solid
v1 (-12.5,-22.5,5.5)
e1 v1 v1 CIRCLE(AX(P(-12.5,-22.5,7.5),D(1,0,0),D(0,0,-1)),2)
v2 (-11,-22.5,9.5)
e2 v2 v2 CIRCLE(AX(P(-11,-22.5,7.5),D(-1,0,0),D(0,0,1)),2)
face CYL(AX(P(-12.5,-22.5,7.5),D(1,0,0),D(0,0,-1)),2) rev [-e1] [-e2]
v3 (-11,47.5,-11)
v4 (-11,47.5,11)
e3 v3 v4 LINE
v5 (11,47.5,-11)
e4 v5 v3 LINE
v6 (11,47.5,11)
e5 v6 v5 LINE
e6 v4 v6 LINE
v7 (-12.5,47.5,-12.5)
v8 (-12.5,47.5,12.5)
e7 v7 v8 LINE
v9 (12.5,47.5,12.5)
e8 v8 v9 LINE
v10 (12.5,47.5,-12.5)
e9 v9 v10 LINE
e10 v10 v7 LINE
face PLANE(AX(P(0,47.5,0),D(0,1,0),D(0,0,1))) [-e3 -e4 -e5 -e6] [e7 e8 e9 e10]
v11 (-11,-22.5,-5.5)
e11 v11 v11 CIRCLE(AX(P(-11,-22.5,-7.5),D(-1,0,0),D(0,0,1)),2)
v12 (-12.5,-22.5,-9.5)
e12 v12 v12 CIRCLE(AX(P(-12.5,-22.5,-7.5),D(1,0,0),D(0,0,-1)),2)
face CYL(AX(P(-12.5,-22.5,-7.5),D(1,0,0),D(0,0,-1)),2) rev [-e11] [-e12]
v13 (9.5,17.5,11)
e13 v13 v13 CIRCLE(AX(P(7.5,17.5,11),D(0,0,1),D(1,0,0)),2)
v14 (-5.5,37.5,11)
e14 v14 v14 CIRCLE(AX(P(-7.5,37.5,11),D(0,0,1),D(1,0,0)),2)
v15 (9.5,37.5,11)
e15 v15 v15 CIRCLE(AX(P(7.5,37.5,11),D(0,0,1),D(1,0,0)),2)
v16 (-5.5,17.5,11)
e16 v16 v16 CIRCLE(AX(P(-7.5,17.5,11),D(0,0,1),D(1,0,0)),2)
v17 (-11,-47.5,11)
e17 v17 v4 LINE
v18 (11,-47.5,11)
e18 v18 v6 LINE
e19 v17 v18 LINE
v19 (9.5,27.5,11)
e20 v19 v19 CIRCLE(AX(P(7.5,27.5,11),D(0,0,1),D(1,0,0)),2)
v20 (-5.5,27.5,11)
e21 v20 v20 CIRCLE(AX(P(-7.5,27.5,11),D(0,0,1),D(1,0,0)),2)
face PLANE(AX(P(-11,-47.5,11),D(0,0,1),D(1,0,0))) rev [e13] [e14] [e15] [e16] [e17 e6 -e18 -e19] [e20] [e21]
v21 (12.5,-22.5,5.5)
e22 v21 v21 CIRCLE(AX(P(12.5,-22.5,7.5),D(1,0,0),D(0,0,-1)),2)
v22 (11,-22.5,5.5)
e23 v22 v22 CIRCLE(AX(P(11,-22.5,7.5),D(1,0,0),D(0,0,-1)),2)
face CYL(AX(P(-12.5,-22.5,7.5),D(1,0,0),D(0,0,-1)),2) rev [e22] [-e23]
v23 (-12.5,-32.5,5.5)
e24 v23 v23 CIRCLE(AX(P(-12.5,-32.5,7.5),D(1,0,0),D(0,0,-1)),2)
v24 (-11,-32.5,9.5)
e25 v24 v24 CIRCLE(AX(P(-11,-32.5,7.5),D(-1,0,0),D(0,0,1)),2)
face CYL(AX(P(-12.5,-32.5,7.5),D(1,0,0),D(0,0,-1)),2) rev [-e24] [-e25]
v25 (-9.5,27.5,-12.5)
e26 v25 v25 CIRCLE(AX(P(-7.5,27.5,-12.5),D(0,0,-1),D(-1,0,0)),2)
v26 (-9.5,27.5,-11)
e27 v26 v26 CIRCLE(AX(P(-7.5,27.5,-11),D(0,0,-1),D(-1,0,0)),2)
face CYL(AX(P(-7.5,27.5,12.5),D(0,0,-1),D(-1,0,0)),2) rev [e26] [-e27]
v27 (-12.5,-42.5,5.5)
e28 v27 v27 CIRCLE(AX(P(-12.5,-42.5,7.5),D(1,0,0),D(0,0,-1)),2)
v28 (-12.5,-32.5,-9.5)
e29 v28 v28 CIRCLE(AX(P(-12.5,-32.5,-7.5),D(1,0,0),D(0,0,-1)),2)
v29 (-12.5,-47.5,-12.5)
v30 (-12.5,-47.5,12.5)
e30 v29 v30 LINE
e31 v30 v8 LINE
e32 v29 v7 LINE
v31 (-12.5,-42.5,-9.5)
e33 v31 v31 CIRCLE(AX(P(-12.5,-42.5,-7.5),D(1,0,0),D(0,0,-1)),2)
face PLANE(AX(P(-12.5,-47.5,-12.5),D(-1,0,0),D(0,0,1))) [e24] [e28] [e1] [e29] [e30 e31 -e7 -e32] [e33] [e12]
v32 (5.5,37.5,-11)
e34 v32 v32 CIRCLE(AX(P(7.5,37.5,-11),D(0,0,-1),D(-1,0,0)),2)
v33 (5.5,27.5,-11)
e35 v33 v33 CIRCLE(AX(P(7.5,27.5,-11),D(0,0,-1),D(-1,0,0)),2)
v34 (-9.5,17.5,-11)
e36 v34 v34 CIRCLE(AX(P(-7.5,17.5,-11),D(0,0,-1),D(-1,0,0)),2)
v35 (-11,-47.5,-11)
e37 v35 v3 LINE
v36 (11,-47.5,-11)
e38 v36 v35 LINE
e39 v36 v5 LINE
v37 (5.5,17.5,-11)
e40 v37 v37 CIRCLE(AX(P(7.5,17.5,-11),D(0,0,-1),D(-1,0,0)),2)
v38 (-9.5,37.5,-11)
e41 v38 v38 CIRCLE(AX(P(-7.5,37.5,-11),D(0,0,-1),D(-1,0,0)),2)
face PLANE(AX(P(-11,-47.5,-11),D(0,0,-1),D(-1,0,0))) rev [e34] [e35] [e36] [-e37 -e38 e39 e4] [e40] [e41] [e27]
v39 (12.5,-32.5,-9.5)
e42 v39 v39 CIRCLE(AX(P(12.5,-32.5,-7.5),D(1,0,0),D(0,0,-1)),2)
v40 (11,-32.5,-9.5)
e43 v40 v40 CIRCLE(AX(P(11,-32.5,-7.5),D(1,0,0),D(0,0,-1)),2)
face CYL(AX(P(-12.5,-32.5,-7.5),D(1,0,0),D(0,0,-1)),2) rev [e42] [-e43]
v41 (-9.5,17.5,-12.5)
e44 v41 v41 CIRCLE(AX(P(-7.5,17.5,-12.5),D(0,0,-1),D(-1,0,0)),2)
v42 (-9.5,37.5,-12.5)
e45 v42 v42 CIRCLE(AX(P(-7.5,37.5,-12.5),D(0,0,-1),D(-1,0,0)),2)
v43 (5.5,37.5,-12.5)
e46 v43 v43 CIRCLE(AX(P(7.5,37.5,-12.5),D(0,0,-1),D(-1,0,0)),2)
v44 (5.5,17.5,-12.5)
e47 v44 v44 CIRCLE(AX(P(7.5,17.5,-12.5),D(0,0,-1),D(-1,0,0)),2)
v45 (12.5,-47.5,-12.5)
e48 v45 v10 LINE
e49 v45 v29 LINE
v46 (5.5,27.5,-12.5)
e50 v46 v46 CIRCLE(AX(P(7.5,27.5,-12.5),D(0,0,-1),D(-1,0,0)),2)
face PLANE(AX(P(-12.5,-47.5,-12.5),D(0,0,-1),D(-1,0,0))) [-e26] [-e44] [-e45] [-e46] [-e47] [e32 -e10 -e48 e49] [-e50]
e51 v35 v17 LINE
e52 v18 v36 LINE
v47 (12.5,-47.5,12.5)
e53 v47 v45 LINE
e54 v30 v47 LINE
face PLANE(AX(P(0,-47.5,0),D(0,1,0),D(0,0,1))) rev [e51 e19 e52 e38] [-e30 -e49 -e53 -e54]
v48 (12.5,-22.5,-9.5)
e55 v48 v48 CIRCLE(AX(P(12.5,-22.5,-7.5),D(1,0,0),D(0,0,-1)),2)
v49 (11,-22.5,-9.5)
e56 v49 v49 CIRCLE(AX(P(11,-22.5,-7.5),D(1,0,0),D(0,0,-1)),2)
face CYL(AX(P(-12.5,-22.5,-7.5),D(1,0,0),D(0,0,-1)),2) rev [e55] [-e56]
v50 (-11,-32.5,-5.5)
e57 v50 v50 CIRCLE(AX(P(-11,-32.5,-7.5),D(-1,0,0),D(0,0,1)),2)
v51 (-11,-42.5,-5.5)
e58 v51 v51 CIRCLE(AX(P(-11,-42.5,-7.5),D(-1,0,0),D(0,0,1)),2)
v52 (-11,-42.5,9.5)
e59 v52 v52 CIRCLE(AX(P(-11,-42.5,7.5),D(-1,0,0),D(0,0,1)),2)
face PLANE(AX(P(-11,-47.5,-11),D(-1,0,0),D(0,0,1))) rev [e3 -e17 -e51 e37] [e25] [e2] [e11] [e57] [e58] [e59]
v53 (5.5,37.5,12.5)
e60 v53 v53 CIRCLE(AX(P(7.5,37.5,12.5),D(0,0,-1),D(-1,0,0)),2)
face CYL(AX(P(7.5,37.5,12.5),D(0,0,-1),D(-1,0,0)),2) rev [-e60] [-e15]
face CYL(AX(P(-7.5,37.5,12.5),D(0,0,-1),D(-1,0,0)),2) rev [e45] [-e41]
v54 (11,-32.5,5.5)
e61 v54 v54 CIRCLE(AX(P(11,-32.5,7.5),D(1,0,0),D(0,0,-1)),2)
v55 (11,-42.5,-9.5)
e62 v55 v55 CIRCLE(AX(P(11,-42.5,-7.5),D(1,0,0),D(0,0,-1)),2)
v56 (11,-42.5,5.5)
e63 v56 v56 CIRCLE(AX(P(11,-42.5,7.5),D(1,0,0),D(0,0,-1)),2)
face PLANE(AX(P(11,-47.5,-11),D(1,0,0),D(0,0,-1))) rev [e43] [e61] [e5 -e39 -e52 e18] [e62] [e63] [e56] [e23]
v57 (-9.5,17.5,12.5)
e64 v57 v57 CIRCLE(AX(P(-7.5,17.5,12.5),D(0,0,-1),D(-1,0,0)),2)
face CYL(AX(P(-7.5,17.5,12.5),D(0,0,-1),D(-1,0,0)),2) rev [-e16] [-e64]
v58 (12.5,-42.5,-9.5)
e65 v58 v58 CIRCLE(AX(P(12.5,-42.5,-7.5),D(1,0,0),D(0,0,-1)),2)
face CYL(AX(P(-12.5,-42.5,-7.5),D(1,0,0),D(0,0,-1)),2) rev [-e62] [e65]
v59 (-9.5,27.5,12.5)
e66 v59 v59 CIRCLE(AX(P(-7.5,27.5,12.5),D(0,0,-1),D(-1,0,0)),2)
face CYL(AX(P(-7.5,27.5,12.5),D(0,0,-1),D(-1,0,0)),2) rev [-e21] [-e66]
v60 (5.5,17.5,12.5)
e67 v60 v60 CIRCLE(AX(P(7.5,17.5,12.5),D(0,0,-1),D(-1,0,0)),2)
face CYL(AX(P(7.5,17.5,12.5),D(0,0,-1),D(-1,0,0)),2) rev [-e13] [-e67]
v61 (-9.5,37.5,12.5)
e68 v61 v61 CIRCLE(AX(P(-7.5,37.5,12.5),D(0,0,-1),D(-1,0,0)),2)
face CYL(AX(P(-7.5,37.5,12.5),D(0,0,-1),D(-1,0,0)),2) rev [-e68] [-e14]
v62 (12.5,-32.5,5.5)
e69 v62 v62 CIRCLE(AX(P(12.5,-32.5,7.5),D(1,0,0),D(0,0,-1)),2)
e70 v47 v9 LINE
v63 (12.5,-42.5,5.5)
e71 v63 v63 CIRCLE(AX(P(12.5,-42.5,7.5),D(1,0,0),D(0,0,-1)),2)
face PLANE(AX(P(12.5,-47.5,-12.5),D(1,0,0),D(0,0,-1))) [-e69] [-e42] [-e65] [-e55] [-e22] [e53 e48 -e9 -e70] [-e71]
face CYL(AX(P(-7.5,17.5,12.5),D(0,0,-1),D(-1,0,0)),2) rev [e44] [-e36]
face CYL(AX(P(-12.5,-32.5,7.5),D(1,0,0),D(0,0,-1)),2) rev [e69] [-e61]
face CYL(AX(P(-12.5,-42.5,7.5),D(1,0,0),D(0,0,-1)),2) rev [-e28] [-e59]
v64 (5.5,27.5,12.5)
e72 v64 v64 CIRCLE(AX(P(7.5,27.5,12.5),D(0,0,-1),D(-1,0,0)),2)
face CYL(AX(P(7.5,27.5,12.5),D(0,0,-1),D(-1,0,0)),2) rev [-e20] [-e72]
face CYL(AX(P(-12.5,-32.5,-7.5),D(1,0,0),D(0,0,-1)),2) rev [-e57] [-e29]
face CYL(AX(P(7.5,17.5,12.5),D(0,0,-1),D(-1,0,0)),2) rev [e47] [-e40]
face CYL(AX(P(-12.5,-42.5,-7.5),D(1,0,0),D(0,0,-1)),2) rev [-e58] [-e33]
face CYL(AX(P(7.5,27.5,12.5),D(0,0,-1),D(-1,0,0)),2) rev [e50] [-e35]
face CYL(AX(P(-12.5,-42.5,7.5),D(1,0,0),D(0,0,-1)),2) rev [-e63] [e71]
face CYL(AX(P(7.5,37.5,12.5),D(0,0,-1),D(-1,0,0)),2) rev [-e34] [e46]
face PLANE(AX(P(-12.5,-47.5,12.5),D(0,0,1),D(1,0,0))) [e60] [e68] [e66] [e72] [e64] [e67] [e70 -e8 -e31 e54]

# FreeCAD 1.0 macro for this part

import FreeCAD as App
import Part
import Sketcher

V = App.Vector
Q = App.Units.Quantity

doc = App.newDocument("Part")
body = doc.addObject("PartDesign::Body", "Body")

# Sketch on XZ plane
sketch1 = body.newObject("Sketcher::SketchObject", "Sketch")
sketch1.AttachmentSupport = (doc.getObject("XZ_Plane"), [""])
sketch1.MapMode = "FlatFace"
sketch1.addGeometry([
    Part.LineSegment(V(-12, -12, 0), V(-12, 12, 0)),  # 0
    Part.LineSegment(V(-12, 12, 0), V(12, 12, 0)),  # 1
    Part.LineSegment(V(12, 12, 0), V(12, -12, 0)),  # 2
    Part.LineSegment(V(12, -12, 0), V(-12, -12, 0)),  # 3
    Part.LineSegment(V(11, 11, 0), V(-11, 11, 0)),  # 4
    Part.LineSegment(V(-11, 11, 0), V(-11, -11, 0)),  # 5
    Part.LineSegment(V(-11, -11, 0), V(11, -11, 0)),  # 6
    Part.LineSegment(V(11, -11, 0), V(11, 11, 0)),  # 7
], False)
sketch1.addConstraint([
    Sketcher.Constraint("Coincident", 0, 2, 1, 1),
    Sketcher.Constraint("Coincident", 1, 2, 2, 1),
    Sketcher.Constraint("Coincident", 2, 2, 3, 1),
    Sketcher.Constraint("Coincident", 3, 2, 0, 1),
    Sketcher.Constraint("Coincident", 4, 2, 5, 1),
    Sketcher.Constraint("Coincident", 5, 2, 6, 1),
    Sketcher.Constraint("Coincident", 6, 2, 7, 1),
    Sketcher.Constraint("Coincident", 7, 2, 4, 1),
    Sketcher.Constraint("Vertical", 0),
    Sketcher.Constraint("Horizontal", 1),
    Sketcher.Constraint("Vertical", 2),
    Sketcher.Constraint("Horizontal", 3),
    Sketcher.Constraint("Horizontal", 4),
    Sketcher.Constraint("Vertical", 5),
    Sketcher.Constraint("Horizontal", 6),
    Sketcher.Constraint("Vertical", 7),
    Sketcher.Constraint("Symmetric", 0, 2, 2, 2, -1, 1),
    Sketcher.Constraint("Symmetric", 4, 2, 6, 2, -1, 1),
    Sketcher.Constraint("Equal", 3, 0),
    Sketcher.Constraint("Equal", 6, 5),
    Sketcher.Constraint("DistanceX", 1, 1, 1, 2, Q("25 mm")),
    Sketcher.Constraint("DistanceX", 4, 2, 4, 1, Q("22 mm")),
])
pad1 = body.newObject("PartDesign::Pad", "Pad")
pad1.Profile = sketch1
pad1.Type = "TwoLengths"
pad1.Length = 47.5
pad1.Length2 = 47.5
pad1.Reversed = True

# Sketch on YZ plane
sketch2 = body.newObject("Sketcher::SketchObject", "Sketch001")
sketch2.AttachmentSupport = (doc.getObject("YZ_Plane"), [""])
sketch2.MapMode = "FlatFace"
sketch2.AttachmentOffset = App.Placement(V(0, 0, 12.5), App.Rotation())
sketch2.addGeometry([
    Part.Circle(V(-42.5, -7.5, 0), V(0, 0, 1), 2),  # 0
    Part.Circle(V(-22.5, -7.5, 0), V(0, 0, 1), 2),  # 1
    Part.Circle(V(-42.5, 7.5, 0), V(0, 0, 1), 2),  # 2
    Part.Circle(V(-22.5, 7.5, 0), V(0, 0, 1), 2),  # 3
    Part.Circle(V(-32.5, -7.5, 0), V(0, 0, 1), 2),  # 4
    Part.Circle(V(-32.5, 7.5, 0), V(0, 0, 1), 2),  # 5
], False)
sketch2.addConstraint([
    Sketcher.Constraint("Equal", 0, 1),
    Sketcher.Constraint("Equal", 1, 2),
    Sketcher.Constraint("Equal", 2, 3),
    Sketcher.Constraint("Equal", 3, 4),
    Sketcher.Constraint("Equal", 4, 5),
    Sketcher.Constraint("Symmetric", 0, 3, 2, 3, -1),
    Sketcher.Constraint("Symmetric", 1, 3, 3, 3, -1),
    Sketcher.Constraint("Symmetric", 4, 3, 5, 3, -1),
    Sketcher.Constraint("Horizontal", 0, 3, 1, 3),
    Sketcher.Constraint("Horizontal", 1, 3, 4, 3),
    Sketcher.Constraint("Diameter", 0, Q("4 mm")),
    Sketcher.Constraint("DistanceX", 0, 3, 1, 3, Q("20 mm")),
    Sketcher.Constraint("DistanceY", 0, 3, 2, 3, Q("15 mm")),
    Sketcher.Constraint("DistanceX", 0, 3, 4, 3, Q("10 mm")),
    Sketcher.Constraint("DistanceX", 0, 3, -1, 1, Q("42.5 mm")),
])
pocket1 = body.newObject("PartDesign::Pocket", "Pocket")
pocket1.Profile = sketch2
pocket1.Length = 25

# Sketch on XY plane
sketch3 = body.newObject("Sketcher::SketchObject", "Sketch002")
sketch3.AttachmentSupport = (doc.getObject("XY_Plane"), [""])
sketch3.MapMode = "FlatFace"
sketch3.AttachmentOffset = App.Placement(V(0, 0, -12.5), App.Rotation())
sketch3.addGeometry([
    Part.Circle(V(-7.5, 37.5, 0), V(0, 0, 1), 2),  # 0
    Part.Circle(V(-7.5, 27.5, 0), V(0, 0, 1), 2),  # 1
    Part.Circle(V(7.5, 37.5, 0), V(0, 0, 1), 2),  # 2
    Part.Circle(V(7.5, 27.5, 0), V(0, 0, 1), 2),  # 3
    Part.Circle(V(7.5, 17.5, 0), V(0, 0, 1), 2),  # 4
    Part.Circle(V(-7.5, 17.5, 0), V(0, 0, 1), 2),  # 5
], False)
sketch3.addConstraint([
    Sketcher.Constraint("Equal", 0, 1),
    Sketcher.Constraint("Equal", 1, 2),
    Sketcher.Constraint("Equal", 2, 3),
    Sketcher.Constraint("Equal", 3, 4),
    Sketcher.Constraint("Equal", 4, 5),
    Sketcher.Constraint("Symmetric", 0, 3, 2, 3, -2),
    Sketcher.Constraint("Symmetric", 1, 3, 3, 3, -2),
    Sketcher.Constraint("Symmetric", 4, 3, 5, 3, -2),
    Sketcher.Constraint("Vertical", 0, 3, 1, 3),
    Sketcher.Constraint("Vertical", 3, 3, 4, 3),
    Sketcher.Constraint("Diameter", 0, Q("4 mm")),
    Sketcher.Constraint("DistanceY", 1, 3, 0, 3, Q("10 mm")),
    Sketcher.Constraint("DistanceX", 0, 3, 2, 3, Q("15 mm")),
    Sketcher.Constraint("DistanceY", 4, 3, 3, 3, Q("10 mm")),
    Sketcher.Constraint("DistanceY", -1, 1, 0, 3, Q("37.5 mm")),
])
pocket2 = body.newObject("PartDesign::Pocket", "Pocket001")
pocket2.Profile = sketch3
pocket2.Length = 25
pocket2.Reversed = True

doc.recompute()
